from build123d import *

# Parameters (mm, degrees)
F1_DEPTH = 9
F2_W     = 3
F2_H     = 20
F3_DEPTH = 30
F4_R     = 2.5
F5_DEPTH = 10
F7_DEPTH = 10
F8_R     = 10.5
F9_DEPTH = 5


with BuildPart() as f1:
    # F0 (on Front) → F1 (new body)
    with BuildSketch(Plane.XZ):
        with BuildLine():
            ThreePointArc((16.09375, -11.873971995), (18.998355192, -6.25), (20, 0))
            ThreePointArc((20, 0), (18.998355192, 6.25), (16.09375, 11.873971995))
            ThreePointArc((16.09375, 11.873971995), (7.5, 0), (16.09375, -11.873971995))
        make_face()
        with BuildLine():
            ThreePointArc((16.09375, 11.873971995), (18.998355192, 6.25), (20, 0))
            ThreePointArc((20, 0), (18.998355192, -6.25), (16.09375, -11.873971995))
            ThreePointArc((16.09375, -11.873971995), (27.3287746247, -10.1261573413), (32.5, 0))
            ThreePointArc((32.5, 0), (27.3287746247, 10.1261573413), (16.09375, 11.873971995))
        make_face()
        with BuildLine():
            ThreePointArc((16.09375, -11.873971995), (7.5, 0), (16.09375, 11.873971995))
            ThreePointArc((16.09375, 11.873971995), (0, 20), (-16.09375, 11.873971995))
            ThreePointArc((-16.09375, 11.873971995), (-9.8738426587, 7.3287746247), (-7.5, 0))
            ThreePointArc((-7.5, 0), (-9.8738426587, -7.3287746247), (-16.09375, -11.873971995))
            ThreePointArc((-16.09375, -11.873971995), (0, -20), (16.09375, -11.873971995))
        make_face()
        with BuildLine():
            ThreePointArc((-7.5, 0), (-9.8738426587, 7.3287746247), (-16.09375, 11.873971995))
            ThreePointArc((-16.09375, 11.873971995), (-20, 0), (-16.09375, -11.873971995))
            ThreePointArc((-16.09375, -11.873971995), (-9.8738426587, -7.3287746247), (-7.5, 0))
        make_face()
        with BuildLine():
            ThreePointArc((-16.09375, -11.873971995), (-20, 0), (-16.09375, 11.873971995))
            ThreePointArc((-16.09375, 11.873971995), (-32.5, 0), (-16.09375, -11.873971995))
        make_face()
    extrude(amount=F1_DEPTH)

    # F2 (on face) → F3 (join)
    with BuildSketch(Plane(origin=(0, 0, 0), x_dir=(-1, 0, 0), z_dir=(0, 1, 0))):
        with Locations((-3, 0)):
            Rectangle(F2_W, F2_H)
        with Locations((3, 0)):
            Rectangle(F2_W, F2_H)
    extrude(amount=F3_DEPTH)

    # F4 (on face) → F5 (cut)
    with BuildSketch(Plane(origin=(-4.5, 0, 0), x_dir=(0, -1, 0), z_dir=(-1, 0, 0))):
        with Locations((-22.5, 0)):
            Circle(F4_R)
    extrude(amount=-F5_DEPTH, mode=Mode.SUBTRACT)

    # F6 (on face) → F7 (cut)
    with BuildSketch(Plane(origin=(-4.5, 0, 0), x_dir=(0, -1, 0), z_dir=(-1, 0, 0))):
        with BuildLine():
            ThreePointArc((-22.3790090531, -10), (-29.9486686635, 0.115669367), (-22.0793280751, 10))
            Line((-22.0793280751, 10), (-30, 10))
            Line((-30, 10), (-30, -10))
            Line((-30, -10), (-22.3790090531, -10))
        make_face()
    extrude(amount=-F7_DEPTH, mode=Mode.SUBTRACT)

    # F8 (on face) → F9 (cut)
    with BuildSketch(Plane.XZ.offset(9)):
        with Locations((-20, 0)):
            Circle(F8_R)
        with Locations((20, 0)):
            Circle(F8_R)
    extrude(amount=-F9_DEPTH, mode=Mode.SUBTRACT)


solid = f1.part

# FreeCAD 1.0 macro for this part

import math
import FreeCAD as App
import Part
import Sketcher

doc = App.newDocument("Part")
body = doc.addObject("PartDesign::Body", "Body")

# Sketch on XZ plane
sketch1 = doc.addObject("Sketcher::SketchObject", "Sketch")
body.addObject(sketch1)
sketch1.AttachmentSupport = (doc.XZ_Plane, [""])
sketch1.MapMode = "FlatFace"
sketch1.addGeometry([
    Part.ArcOfCircle(Part.Circle(App.Vector(20, 0, 0), App.Vector(0, 0, 1), 12), math.radians(-108), math.radians(0)),  # 0
    Part.ArcOfCircle(Part.Circle(App.Vector(20, 0, 0), App.Vector(0, 0, 1), 12), math.radians(0), math.radians(108)),  # 1
    Part.ArcOfCircle(Part.Circle(App.Vector(0, 0, 0), App.Vector(0, 0, 1), 20), math.radians(36), math.radians(144)),  # 2
    Part.ArcOfCircle(Part.Circle(App.Vector(-20, 0, 0), App.Vector(0, 0, 1), 12), math.radians(72), math.radians(288)),  # 3
    Part.ArcOfCircle(Part.Circle(App.Vector(0, 0, 0), App.Vector(0, 0, 1), 20), math.radians(-144), math.radians(-36)),  # 4
], False)
sketch1.addConstraint([
    Sketcher.Constraint("Tangent", 0, 2, 1, 1),
    Sketcher.Constraint("Coincident", 1, 2, 2, 1),
    Sketcher.Constraint("Coincident", 2, 2, 3, 1),
    Sketcher.Constraint("Coincident", 3, 2, 4, 1),
    Sketcher.Constraint("Coincident", 4, 2, 0, 1),
    Sketcher.Constraint("Coincident", 2, 3, -1, 1),
    Sketcher.Constraint("Coincident", 4, 3, -1, 1),
    Sketcher.Constraint("Equal", 0, 1),
    Sketcher.Constraint("Equal", 1, 3),
    Sketcher.Constraint("Equal", 2, 4),
    Sketcher.Constraint("Symmetric", 0, 3, 3, 3, -1, 1),
    Sketcher.Constraint("PointOnObject", 0, 3, -1),
    Sketcher.Constraint("PointOnObject", 0, 2, -1),
    Sketcher.Constraint("Radius", 2, 20.0),
    Sketcher.Constraint("Radius", 0, 12.5),
    Sketcher.Constraint("DistanceX", -1, 1, 0, 3, 20.0),
])
pad1 = doc.addObject("PartDesign::Pad", "Pad")
body.addObject(pad1)
pad1.Profile = sketch1
pad1.Length = 9

# Sketch on XZ plane
sketch2 = doc.addObject("Sketcher::SketchObject", "Sketch001")
body.addObject(sketch2)
sketch2.AttachmentSupport = (doc.XZ_Plane, [""])
sketch2.MapMode = "FlatFace"
sketch2.addGeometry([
    Part.LineSegment(App.Vector(4.5, 10, 0), App.Vector(4.5, -10, 0)),  # 0
    Part.LineSegment(App.Vector(4.5, -10, 0), App.Vector(1.5, -10, 0)),  # 1
    Part.LineSegment(App.Vector(1.5, -10, 0), App.Vector(1.5, 10, 0)),  # 2
    Part.LineSegment(App.Vector(1.5, 10, 0), App.Vector(4.5, 10, 0)),  # 3
    Part.LineSegment(App.Vector(-1.5, 10, 0), App.Vector(-1.5, -10, 0)),  # 4
    Part.LineSegment(App.Vector(-1.5, -10, 0), App.Vector(-4.5, -10, 0)),  # 5
    Part.LineSegment(App.Vector(-4.5, -10, 0), App.Vector(-4.5, 10, 0)),  # 6
    Part.LineSegment(App.Vector(-4.5, 10, 0), App.Vector(-1.5, 10, 0)),  # 7
], False)
sketch2.addConstraint([
    Sketcher.Constraint("Coincident", 0, 2, 1, 1),
    Sketcher.Constraint("Coincident", 1, 2, 2, 1),
    Sketcher.Constraint("Coincident", 2, 2, 3, 1),
    Sketcher.Constraint("Coincident", 3, 2, 0, 1),
    Sketcher.Constraint("Coincident", 4, 2, 5, 1),
    Sketcher.Constraint("Coincident", 5, 2, 6, 1),
    Sketcher.Constraint("Coincident", 6, 2, 7, 1),
    Sketcher.Constraint("Coincident", 7, 2, 4, 1),
    Sketcher.Constraint("Vertical", 0),
    Sketcher.Constraint("Horizontal", 1),
    Sketcher.Constraint("Vertical", 2),
    Sketcher.Constraint("Horizontal", 3),
    Sketcher.Constraint("Vertical", 4),
    Sketcher.Constraint("Horizontal", 5),
    Sketcher.Constraint("Vertical", 6),
    Sketcher.Constraint("Horizontal", 7),
    Sketcher.Constraint("Symmetric", 2, 2, 4, 2, -1, 1),
    Sketcher.Constraint("Symmetric", 0, 2, 6, 2, -1, 1),
    Sketcher.Constraint("Horizontal", 1, 2, 4, 2),
    Sketcher.Constraint("DistanceX", 1, 2, 1, 1, 3.0),
    Sketcher.Constraint("DistanceY", 0, 2, 0, 1, 20.0),
    Sketcher.Constraint("DistanceX", 4, 2, 1, 2, 3.0),
])
pad2 = doc.addObject("PartDesign::Pad", "Pad001")
body.addObject(pad2)
pad2.Profile = sketch2
pad2.Length = 30
pad2.Reversed = True

# Sketch on YZ plane
sketch3 = doc.addObject("Sketcher::SketchObject", "Sketch002")
body.addObject(sketch3)
sketch3.AttachmentSupport = (doc.YZ_Plane, [""])
sketch3.MapMode = "FlatFace"
sketch3.AttachmentOffset = App.Placement(App.Vector(0, 0, -4.5), App.Rotation())
sketch3.addGeometry(Part.Circle(App.Vector(22.5, 0, 0), App.Vector(0, 0, 1), 2.5), False)
sketch3.addConstraint([
    Sketcher.Constraint("PointOnObject", 0, 3, -1),
    Sketcher.Constraint("Diameter", 0, 5.0),
    Sketcher.Constraint("DistanceX", -1, 1, 0, 3, 22.5),
])
pocket1 = doc.addObject("PartDesign::Pocket", "Pocket")
body.addObject(pocket1)
pocket1.Profile = sketch3
pocket1.Length = 10
pocket1.Reversed = True

# Sketch on YZ plane
sketch4 = doc.addObject("Sketcher::SketchObject", "Sketch003")
body.addObject(sketch4)
sketch4.AttachmentSupport = (doc.YZ_Plane, [""])
sketch4.MapMode = "FlatFace"
sketch4.AttachmentOffset = App.Placement(App.Vector(0, 0, -4.5), App.Rotation())
sketch4.addGeometry([
    Part.ArcOfCircle(Part.Circle(App.Vector(20, 0, 0), App.Vector(0, 0, 1), 10), math.radians(-74), math.radians(76)),
    Part.LineSegment(App.Vector(22, 10, 0), App.Vector(30, 10, 0)),
    Part.LineSegment(App.Vector(30, 10, 0), App.Vector(30, -10, 0)),
    Part.LineSegment(App.Vector(30, -10, 0), App.Vector(22, -10, 0)),
], False)
sketch4.addConstraint([
    Sketcher.Constraint("Coincident", 0, 2, 1, 1),
    Sketcher.Constraint("Coincident", 1, 2, 2, 1),
    Sketcher.Constraint("Coincident", 2, 2, 3, 1),
    Sketcher.Constraint("Coincident", 3, 2, 0, 1),
    Sketcher.Constraint("Horizontal", 1),
    Sketcher.Constraint("Vertical", 2),
    Sketcher.Constraint("Horizontal", 3),
    Sketcher.Constraint("DistanceY", 2, 2, 2, 1, 20.0),
    Sketcher.Constraint("DistanceY", -1, 1, 0, 2, 10.0),
    Sketcher.Constraint("DistanceX", -1, 1, 1, 2, 30.0),
    Sketcher.Constraint("Radius", 0, 10.338014),
    Sketcher.Constraint("DistanceX", 1, 1, 1, 2, 7.920672),
    Sketcher.Constraint("DistanceX", 3, 2, 3, 1, 7.620991),
])
pocket2 = doc.addObject("PartDesign::Pocket", "Pocket001")
body.addObject(pocket2)
pocket2.Profile = sketch4
pocket2.Length = 10
pocket2.Reversed = True

# Sketch on XZ plane
sketch5 = doc.addObject("Sketcher::SketchObject", "Sketch004")
body.addObject(sketch5)
sketch5.AttachmentSupport = (doc.XZ_Plane, [""])
sketch5.MapMode = "FlatFace"
sketch5.AttachmentOffset = App.Placement(App.Vector(0, 0, 9), App.Rotation())
sketch5.addGeometry([
    Part.Circle(App.Vector(-20, 0, 0), App.Vector(0, 0, 1), 10),
    Part.Circle(App.Vector(20, 0, 0), App.Vector(0, 0, 1), 10),
], False)
sketch5.addConstraint([
    Sketcher.Constraint("Equal", 0, 1),
    Sketcher.Constraint("Symmetric", 0, 3, 1, 3, -1, 1),
    Sketcher.Constraint("PointOnObject", 0, 3, -1),
    Sketcher.Constraint("Diameter", 0, 21.0),
    Sketcher.Constraint("DistanceX", 0, 3, -1, 1, 20.0),
])
pocket3 = doc.addObject("PartDesign::Pocket", "Pocket002")
body.addObject(pocket3)
pocket3.Profile = sketch5
pocket3.Length = 5

doc.recompute()
